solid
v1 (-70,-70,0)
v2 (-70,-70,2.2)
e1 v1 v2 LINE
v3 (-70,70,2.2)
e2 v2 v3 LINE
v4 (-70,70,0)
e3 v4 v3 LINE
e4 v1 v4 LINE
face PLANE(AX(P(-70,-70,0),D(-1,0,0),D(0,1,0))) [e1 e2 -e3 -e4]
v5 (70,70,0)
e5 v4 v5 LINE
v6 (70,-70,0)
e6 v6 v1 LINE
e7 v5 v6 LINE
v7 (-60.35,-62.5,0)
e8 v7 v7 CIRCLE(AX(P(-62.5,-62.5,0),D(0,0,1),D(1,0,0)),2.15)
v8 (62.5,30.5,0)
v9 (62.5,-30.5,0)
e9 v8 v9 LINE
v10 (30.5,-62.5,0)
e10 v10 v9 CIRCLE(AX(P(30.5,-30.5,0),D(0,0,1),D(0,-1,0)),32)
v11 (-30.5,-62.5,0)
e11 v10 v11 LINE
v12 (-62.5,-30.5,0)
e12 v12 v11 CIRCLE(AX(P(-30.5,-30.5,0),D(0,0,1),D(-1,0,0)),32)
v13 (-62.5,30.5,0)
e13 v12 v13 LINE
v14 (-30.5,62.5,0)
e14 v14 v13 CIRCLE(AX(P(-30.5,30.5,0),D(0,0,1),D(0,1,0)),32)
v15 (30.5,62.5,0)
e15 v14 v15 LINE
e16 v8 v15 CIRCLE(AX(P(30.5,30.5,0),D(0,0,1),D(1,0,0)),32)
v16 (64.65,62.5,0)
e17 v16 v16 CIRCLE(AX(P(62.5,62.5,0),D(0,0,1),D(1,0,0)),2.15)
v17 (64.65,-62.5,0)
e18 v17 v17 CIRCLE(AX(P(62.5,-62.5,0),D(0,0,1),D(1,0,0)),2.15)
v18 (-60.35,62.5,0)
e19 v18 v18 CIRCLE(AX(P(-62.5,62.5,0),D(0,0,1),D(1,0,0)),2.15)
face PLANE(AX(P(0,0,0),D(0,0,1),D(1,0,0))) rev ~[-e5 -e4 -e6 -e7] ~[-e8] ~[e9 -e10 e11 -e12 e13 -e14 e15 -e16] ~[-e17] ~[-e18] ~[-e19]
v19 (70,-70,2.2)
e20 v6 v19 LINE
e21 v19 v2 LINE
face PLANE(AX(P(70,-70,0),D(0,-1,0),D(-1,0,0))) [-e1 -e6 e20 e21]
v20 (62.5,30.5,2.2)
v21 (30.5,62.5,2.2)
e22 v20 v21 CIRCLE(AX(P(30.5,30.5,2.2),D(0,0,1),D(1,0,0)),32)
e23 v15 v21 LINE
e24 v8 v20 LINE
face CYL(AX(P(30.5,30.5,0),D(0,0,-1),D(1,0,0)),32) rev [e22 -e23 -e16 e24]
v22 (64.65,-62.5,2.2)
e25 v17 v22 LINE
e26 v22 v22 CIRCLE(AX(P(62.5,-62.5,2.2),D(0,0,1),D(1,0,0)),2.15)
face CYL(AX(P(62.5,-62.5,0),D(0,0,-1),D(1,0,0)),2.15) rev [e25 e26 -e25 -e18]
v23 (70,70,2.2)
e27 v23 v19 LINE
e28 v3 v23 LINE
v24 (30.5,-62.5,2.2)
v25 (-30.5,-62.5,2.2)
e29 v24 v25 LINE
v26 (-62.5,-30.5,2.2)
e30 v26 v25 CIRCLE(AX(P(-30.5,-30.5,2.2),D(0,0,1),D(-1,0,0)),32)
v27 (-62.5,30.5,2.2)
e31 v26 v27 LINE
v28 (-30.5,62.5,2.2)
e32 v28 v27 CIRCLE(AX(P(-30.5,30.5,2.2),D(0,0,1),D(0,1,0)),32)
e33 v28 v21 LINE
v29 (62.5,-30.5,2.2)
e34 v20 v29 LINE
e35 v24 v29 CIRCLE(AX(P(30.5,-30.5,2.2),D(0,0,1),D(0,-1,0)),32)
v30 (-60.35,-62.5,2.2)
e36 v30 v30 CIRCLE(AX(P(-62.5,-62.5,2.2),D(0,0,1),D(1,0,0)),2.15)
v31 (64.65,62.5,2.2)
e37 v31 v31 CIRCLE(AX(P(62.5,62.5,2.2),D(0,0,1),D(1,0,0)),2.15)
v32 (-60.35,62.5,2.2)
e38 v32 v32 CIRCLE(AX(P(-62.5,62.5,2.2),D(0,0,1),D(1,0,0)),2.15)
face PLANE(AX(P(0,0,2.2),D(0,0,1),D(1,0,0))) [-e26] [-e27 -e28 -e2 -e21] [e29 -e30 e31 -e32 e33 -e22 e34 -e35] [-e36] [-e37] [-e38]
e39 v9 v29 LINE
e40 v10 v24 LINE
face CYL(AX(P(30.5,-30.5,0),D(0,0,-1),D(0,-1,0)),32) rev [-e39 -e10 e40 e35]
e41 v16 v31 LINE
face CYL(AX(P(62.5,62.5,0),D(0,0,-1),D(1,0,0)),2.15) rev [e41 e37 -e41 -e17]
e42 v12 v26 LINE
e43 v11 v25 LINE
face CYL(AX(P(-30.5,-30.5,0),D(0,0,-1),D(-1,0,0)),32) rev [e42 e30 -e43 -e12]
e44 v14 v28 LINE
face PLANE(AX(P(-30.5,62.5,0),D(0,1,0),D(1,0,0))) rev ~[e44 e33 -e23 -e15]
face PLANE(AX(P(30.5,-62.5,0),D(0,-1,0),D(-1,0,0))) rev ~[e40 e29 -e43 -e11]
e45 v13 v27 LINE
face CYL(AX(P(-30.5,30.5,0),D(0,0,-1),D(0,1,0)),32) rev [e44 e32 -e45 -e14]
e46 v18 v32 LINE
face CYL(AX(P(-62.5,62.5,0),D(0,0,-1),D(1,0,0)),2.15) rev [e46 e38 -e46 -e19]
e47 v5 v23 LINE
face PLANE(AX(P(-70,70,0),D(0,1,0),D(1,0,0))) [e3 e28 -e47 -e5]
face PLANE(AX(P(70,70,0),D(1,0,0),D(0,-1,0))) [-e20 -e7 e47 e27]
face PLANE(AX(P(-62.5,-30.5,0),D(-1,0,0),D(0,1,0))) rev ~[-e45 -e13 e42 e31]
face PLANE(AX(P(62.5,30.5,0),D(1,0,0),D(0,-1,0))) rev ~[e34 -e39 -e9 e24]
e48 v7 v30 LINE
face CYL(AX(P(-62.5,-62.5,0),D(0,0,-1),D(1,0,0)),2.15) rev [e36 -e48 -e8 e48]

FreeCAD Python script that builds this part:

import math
import FreeCAD as App
import Part
import Sketcher
from FreeCAD import Vector


def add_polygon(sketch, points):
    """Adds a closed chain of lines whose ends are joined by coincident constraints."""
    first, n = sketch.GeometryCount, len(points)
    for a, b in zip(points, points[1:] + points[:1]):
        sketch.addGeometry(Part.LineSegment(App.Vector(*a, 0), App.Vector(*b, 0)), False)
    for i in range(n):
        sketch.addConstraint(Sketcher.Constraint("Coincident", first + i, 2, first + (i + 1) % n, 1))

doc = App.newDocument("Part")
body = doc.addObject("PartDesign::Body", "Body")

# Sketch on XY plane
sketch1 = doc.addObject("Sketcher::SketchObject", "Sketch")
body.addObject(sketch1)
sketch1.AttachmentSupport = (doc.XY_Plane, [""])
sketch1.MapMode = "FlatFace"
add_polygon(sketch1, [(70, 70), (-70, 70), (-70, -70), (70, -70)])  # lines 0-3
sketch1.addGeometry(Part.Circle(Vector(-62.5, -62.5, 0), Vector(0, 0, 1), 2.15), False)  # 4
sketch1.addGeometry(Part.Circle(Vector(62.5, -62.5, 0), Vector(0, 0, 1), 2.15), False)  # 5
sketch1.addGeometry(Part.Circle(Vector(-62.5, 62.5, 0), Vector(0, 0, 1), 2.15), False)  # 6
sketch1.addGeometry(Part.ArcOfCircle(Part.Circle(Vector(-30.5, 30.5, 0), Vector(0, 0, 1), 32), math.radians(90), math.radians(180)), False)  # 7
sketch1.addGeometry(Part.LineSegment(Vector(-30.5, 62.5, 0), Vector(30.5, 62.5, 0)), False)  # 8
sketch1.addGeometry(Part.ArcOfCircle(Part.Circle(Vector(30.5, 30.5, 0), Vector(0, 0, 1), 32), math.radians(0), math.radians(90)), False)  # 9
sketch1.addGeometry(Part.LineSegment(Vector(62.5, 30.5, 0), Vector(62.5, -30.5, 0)), False)  # 10
sketch1.addGeometry(Part.ArcOfCircle(Part.Circle(Vector(30.5, -30.5, 0), Vector(0, 0, 1), 32), math.radians(-90), math.radians(0)), False)  # 11
sketch1.addGeometry(Part.LineSegment(Vector(30.5, -62.5, 0), Vector(-30.5, -62.5, 0)), False)  # 12
sketch1.addGeometry(Part.ArcOfCircle(Part.Circle(Vector(-30.5, -30.5, 0), Vector(0, 0, 1), 32), math.radians(180), math.radians(270)), False)  # 13
sketch1.addGeometry(Part.LineSegment(Vector(-62.5, -30.5, 0), Vector(-62.5, 30.5, 0)), False)  # 14
sketch1.addGeometry(Part.Circle(Vector(62.5, 62.5, 0), Vector(0, 0, 1), 2.15), False)  # 15
sketch1.addConstraint([
    Sketcher.Constraint("Tangent", 7, 1, 8, 1),
    Sketcher.Constraint("Tangent", 8, 2, 9, 2),
    Sketcher.Constraint("Tangent", 9, 1, 10, 1),
    Sketcher.Constraint("Tangent", 10, 2, 11, 2),
    Sketcher.Constraint("Tangent", 11, 1, 12, 1),
    Sketcher.Constraint("Tangent", 12, 2, 13, 2),
    Sketcher.Constraint("Tangent", 13, 1, 14, 1),
    Sketcher.Constraint("Tangent", 14, 2, 7, 2),
    Sketcher.Constraint("Horizontal", 0),
    Sketcher.Constraint("Vertical", 1),
    Sketcher.Constraint("Horizontal", 2),
    Sketcher.Constraint("Vertical", 3),
    Sketcher.Constraint("Horizontal", 8),
    Sketcher.Constraint("Vertical", 10),
    Sketcher.Constraint("Horizontal", 12),
    Sketcher.Constraint("Vertical", 14),
    Sketcher.Constraint("Equal", 4, 5),
    Sketcher.Constraint("Equal", 5, 6),
    Sketcher.Constraint("Equal", 7, 9),
    Sketcher.Constraint("Equal", 9, 11),
    Sketcher.Constraint("Equal", 11, 13),
    Sketcher.Constraint("Equal", 6, 15),
    Sketcher.Constraint("Symmetric", 5, 3, 6, 3, -1, 1),
    Sketcher.Constraint("Symmetric", 7, 3, 11, 3, -1, 1),
    Sketcher.Constraint("Symmetric", 4, 3, 15, 3, -1, 1),
    Sketcher.Constraint("Symmetric", 0, 2, 2, 2, -1, 1),
    Sketcher.Constraint("Symmetric", 4, 3, 5, 3, -2),
    Sketcher.Constraint("Horizontal", 15, 3, 7, 1),
    Sketcher.Constraint("Vertical", 15, 3, 9, 1),
    Sketcher.Constraint("Equal", 2, 1),
    Sketcher.Constraint("Equal", 12, 10),
    Sketcher.Constraint("Radius", 7, 32.0),
    Sketcher.Constraint("Diameter", 4, 4.3),
    Sketcher.Constraint("DistanceX", 0, 2, 0, 1, 140.0),
    Sketcher.Constraint("DistanceX", 4, 3, 5, 3, 125.0),
])
pad1 = doc.addObject("PartDesign::Pad", "Pad")
body.addObject(pad1)
pad1.Profile = sketch1
pad1.Length = 2.2

doc.recompute()
